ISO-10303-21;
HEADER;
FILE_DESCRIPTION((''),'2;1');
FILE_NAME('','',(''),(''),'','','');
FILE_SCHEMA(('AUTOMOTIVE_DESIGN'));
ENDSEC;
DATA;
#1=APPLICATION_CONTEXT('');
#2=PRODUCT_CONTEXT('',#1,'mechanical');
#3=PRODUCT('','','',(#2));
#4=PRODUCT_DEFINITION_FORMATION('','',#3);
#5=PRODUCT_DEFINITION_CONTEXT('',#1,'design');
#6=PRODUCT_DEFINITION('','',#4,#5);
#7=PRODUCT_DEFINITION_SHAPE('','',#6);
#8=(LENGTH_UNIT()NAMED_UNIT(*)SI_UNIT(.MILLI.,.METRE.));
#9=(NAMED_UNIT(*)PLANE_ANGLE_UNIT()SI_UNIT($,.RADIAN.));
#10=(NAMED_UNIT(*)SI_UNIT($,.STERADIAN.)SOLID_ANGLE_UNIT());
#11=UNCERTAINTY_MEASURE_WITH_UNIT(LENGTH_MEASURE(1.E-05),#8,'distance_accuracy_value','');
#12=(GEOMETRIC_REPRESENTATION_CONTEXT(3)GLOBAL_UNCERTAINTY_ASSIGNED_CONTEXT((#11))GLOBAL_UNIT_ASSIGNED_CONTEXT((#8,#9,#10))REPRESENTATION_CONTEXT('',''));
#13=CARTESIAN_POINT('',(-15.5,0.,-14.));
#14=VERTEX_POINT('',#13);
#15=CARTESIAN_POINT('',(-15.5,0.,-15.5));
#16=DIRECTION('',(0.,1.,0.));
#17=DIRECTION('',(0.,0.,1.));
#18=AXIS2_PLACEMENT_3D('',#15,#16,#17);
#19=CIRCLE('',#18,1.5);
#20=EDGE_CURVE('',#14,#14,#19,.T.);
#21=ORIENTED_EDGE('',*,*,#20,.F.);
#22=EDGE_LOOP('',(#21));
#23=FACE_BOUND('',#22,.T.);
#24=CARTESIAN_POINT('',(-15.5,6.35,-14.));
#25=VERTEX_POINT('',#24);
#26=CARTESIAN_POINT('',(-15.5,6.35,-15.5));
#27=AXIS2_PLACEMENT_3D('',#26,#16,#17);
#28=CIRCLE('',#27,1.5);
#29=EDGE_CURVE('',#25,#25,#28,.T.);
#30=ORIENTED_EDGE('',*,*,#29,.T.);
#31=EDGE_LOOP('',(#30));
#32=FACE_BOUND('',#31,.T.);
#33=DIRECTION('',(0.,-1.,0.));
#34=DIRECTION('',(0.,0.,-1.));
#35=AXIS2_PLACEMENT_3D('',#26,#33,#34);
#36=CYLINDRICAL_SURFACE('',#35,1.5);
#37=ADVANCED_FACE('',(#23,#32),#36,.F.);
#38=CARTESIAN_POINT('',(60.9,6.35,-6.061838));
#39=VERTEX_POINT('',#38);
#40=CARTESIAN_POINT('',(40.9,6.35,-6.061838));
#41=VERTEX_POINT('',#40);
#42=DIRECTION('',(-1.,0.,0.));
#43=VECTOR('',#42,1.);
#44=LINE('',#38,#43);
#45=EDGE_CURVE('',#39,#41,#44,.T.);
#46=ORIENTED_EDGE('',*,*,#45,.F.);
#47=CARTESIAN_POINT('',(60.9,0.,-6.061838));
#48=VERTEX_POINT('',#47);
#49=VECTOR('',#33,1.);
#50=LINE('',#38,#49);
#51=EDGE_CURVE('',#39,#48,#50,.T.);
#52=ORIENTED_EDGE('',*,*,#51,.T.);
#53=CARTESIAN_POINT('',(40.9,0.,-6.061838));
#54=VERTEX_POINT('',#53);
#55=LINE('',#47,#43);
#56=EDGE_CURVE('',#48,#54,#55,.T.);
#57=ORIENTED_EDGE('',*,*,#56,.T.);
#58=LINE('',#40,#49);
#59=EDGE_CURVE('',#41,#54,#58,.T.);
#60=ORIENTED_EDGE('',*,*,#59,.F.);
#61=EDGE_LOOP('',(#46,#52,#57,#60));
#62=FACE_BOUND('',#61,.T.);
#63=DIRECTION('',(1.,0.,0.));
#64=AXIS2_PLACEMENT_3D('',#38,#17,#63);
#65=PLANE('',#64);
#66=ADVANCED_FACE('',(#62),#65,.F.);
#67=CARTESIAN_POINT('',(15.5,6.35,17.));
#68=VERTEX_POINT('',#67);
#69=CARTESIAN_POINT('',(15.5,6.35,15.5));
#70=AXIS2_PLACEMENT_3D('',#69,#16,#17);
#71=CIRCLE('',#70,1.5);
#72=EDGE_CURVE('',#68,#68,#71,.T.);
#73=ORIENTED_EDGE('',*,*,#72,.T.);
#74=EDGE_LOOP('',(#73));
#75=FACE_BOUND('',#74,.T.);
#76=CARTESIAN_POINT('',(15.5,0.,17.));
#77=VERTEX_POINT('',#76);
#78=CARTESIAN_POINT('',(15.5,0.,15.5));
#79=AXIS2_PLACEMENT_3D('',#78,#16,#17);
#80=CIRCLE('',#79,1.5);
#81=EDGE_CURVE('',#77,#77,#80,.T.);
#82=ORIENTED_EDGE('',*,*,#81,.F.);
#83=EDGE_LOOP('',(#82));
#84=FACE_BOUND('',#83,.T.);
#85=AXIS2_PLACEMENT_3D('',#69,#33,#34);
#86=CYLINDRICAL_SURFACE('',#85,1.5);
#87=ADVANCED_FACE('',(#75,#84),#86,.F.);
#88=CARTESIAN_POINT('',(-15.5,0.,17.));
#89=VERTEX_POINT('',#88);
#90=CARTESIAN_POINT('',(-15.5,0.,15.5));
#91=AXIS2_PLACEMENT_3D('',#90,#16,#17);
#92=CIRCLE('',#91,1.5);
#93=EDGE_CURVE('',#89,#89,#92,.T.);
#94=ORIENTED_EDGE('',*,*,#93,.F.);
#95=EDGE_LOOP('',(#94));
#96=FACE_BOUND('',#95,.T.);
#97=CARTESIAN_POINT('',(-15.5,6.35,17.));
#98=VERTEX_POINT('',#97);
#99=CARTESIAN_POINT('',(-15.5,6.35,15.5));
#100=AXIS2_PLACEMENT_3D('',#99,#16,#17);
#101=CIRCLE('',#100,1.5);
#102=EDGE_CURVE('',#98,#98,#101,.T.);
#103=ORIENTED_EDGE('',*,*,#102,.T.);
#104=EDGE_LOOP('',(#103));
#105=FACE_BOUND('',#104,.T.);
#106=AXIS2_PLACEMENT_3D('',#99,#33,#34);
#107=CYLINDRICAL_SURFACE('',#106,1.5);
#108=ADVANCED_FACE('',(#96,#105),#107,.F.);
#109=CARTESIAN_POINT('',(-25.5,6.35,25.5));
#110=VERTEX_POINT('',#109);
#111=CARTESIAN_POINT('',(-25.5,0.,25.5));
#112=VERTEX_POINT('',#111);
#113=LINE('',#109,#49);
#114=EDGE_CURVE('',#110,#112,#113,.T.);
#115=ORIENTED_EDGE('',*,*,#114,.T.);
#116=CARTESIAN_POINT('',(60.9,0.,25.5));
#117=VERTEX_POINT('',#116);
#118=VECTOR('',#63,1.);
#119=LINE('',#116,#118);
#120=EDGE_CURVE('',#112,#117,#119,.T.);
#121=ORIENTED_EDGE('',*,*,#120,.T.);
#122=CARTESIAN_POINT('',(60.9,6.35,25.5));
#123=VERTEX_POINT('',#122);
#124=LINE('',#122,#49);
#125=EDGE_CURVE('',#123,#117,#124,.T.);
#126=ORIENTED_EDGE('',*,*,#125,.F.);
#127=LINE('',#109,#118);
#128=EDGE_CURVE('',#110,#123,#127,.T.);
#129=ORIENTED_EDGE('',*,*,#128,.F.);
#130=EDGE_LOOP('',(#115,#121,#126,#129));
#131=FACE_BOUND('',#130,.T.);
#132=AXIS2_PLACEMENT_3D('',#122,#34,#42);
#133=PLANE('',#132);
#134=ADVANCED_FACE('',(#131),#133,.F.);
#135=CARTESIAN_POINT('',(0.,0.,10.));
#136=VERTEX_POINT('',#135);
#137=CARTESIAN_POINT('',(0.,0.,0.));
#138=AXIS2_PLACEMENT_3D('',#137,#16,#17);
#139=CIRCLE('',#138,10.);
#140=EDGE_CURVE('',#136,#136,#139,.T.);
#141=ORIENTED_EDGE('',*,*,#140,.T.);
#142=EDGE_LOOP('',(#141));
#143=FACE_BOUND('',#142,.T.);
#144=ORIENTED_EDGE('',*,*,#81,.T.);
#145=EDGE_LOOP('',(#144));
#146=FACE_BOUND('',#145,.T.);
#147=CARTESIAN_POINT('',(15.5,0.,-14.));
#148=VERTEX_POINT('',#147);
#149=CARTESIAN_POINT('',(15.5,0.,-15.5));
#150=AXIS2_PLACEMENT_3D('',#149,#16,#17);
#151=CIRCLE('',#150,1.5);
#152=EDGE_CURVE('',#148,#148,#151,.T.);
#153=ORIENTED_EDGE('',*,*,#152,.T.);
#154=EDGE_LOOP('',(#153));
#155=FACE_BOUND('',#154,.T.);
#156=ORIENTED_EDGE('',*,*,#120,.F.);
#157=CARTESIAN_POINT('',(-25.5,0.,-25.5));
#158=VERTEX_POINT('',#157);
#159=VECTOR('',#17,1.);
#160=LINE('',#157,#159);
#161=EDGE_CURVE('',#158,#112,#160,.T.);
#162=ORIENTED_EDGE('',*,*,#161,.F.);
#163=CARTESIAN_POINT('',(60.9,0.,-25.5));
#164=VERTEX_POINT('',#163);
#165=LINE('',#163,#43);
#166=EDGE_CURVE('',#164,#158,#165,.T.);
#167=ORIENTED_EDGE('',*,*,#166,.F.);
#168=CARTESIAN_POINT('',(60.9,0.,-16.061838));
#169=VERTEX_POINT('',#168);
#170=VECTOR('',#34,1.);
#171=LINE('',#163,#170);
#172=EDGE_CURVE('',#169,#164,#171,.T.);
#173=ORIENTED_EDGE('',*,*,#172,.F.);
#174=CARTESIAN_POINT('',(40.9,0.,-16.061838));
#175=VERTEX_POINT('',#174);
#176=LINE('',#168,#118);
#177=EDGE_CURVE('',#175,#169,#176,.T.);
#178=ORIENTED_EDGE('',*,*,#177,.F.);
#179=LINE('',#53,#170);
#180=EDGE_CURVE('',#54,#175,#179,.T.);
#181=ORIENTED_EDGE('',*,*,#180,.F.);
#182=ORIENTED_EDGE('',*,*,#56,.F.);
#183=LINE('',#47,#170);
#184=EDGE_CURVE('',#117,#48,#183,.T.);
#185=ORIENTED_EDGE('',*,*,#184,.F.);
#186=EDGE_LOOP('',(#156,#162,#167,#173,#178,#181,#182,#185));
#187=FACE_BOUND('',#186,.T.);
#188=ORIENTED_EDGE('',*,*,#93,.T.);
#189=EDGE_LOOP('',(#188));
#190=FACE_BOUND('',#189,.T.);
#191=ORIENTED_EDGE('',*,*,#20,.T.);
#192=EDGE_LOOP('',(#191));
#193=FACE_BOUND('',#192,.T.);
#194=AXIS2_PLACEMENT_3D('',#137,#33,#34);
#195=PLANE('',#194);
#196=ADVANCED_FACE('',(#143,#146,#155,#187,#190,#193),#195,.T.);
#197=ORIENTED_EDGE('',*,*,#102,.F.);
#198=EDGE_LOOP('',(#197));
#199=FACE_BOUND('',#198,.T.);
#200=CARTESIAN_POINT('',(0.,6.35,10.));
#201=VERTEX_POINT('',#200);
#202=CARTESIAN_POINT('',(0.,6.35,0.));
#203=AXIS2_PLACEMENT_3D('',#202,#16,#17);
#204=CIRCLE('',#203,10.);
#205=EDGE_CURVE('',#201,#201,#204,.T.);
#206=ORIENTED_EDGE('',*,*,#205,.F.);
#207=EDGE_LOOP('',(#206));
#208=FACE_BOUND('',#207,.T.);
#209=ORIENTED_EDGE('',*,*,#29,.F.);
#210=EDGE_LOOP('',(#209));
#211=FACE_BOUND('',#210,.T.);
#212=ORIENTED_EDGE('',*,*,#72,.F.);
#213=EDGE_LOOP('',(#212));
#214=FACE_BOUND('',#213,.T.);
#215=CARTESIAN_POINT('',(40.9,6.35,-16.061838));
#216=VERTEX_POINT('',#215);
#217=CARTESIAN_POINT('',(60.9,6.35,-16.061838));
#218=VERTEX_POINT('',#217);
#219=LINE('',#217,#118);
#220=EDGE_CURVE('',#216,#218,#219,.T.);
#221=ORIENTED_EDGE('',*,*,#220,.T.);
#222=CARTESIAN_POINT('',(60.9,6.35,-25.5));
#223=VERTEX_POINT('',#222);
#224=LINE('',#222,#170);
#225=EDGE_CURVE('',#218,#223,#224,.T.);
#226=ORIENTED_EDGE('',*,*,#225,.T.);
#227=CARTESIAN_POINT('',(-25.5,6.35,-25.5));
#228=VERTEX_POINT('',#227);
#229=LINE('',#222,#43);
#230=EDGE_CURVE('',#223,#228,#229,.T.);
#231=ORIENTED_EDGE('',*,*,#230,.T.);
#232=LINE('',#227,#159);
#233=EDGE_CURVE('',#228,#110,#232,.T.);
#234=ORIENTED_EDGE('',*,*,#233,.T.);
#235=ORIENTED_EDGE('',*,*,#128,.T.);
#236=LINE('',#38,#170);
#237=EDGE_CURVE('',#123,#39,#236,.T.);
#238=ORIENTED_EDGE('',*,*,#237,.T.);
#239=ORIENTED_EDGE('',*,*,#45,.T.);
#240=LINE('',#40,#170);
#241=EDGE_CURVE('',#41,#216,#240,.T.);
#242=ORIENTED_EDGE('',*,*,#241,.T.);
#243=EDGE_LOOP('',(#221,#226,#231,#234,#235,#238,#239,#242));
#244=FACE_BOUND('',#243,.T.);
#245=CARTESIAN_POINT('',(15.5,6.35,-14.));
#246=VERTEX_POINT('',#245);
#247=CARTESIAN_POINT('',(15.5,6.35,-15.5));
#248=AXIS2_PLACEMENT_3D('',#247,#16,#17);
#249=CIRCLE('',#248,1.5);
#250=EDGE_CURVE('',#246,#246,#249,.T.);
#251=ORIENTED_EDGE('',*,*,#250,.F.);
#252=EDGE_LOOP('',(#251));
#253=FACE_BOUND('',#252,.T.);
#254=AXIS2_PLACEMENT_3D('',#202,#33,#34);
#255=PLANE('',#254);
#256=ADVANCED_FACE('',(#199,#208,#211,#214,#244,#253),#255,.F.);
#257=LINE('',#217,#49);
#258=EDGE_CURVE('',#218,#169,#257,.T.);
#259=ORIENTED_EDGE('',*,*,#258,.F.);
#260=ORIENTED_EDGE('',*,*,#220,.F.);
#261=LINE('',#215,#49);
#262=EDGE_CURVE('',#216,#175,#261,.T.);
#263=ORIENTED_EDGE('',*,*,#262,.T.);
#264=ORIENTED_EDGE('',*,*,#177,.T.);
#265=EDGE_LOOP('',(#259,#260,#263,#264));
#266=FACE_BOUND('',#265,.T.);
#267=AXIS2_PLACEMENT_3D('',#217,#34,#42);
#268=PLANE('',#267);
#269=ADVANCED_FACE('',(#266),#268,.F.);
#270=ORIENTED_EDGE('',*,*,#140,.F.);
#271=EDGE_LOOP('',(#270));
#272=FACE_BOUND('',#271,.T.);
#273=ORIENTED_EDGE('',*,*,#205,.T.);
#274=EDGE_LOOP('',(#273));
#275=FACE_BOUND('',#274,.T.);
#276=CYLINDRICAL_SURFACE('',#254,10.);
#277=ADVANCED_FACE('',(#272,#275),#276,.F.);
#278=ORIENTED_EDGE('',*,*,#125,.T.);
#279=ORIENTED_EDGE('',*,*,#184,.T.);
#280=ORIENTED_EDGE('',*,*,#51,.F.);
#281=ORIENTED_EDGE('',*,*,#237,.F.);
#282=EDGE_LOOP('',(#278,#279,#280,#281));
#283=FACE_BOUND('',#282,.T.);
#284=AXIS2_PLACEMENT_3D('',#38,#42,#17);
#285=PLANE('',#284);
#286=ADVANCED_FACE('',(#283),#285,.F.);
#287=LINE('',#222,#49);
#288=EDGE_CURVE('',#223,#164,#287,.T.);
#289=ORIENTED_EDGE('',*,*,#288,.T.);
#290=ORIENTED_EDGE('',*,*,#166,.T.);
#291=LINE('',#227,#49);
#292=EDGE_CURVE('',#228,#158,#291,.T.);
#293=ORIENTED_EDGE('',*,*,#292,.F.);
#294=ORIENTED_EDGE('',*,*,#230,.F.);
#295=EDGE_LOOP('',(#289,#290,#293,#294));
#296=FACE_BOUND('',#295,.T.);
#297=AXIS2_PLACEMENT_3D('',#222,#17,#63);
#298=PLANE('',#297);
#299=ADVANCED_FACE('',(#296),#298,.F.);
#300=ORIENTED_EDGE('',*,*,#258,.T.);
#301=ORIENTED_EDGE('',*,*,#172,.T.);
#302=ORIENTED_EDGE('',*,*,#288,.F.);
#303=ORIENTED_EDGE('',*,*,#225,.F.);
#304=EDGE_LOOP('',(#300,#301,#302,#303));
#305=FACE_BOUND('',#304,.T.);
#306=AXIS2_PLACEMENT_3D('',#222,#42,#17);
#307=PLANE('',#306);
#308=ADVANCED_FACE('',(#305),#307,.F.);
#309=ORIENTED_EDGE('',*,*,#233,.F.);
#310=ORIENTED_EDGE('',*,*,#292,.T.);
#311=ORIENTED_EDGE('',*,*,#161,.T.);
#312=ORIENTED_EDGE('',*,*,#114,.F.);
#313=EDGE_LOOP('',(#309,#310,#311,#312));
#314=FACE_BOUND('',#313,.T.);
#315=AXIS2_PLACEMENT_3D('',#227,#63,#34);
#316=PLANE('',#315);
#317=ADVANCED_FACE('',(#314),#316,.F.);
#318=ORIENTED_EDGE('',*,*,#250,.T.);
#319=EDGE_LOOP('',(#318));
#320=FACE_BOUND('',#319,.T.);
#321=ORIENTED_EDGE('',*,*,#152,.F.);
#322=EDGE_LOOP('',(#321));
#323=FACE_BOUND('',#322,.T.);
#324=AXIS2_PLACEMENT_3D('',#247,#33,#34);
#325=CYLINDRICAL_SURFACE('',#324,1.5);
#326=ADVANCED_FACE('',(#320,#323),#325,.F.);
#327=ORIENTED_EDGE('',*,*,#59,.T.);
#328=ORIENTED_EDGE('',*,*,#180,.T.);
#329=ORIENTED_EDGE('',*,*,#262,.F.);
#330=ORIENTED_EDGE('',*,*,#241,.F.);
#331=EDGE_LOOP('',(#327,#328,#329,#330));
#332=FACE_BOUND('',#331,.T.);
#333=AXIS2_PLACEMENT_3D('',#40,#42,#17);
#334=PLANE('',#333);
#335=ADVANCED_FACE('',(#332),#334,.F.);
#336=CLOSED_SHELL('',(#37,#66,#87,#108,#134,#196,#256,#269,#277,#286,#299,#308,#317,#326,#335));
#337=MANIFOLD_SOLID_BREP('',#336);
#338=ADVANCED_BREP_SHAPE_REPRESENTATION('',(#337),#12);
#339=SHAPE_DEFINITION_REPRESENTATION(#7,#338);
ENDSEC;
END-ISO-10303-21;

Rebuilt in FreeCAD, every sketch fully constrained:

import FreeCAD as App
import Part
import Sketcher

V = App.Vector
Q = App.Units.Quantity

doc = App.newDocument("Part")
body = doc.addObject("PartDesign::Body", "Body")

# Sketch on XZ plane
sketch1 = body.newObject("Sketcher::SketchObject", "Sketch")
sketch1.AttachmentSupport = (doc.getObject("XZ_Plane"), [""])
sketch1.MapMode = "FlatFace"
sketch1.addGeometry(Part.LineSegment(V(-25.5, -25.5, 0), V(-25.5, 25.5, 0)), False)
sketch1.addGeometry(Part.LineSegment(V(-25.5, 25.5, 0), V(60.9, 25.5, 0)), False)
sketch1.addGeometry(Part.LineSegment(V(60.9, 25.5, 0), V(60.9, -6.1, 0)), False)
sketch1.addGeometry(Part.LineSegment(V(60.9, -6.1, 0), V(40.9, -6.1, 0)), False)
sketch1.addGeometry(Part.LineSegment(V(40.9, -6.1, 0), V(40.9, -16.1, 0)), False)
sketch1.addGeometry(Part.LineSegment(V(40.9, -16.1, 0), V(60.9, -16.1, 0)), False)
sketch1.addGeometry(Part.LineSegment(V(60.9, -16.1, 0), V(60.9, -25.5, 0)), False)
sketch1.addGeometry(Part.LineSegment(V(60.9, -25.5, 0), V(-25.5, -25.5, 0)), False)
sketch1.addGeometry(Part.Circle(V(-15.5, 15.5, 0), V(0, 0, 1), 1.5), False)
sketch1.addGeometry(Part.Circle(V(15.5, 15.5, 0), V(0, 0, 1), 1.5), False)
sketch1.addGeometry(Part.Circle(V(0, 0, 0), V(0, 0, 1), 10), False)
sketch1.addGeometry(Part.Circle(V(-15.5, -15.5, 0), V(0, 0, 1), 1.5), False)
sketch1.addGeometry(Part.Circle(V(15.5, -15.5, 0), V(0, 0, 1), 1.5), False)
sketch1.addConstraint(Sketcher.Constraint("Coincident", 0, 2, 1, 1))
sketch1.addConstraint(Sketcher.Constraint("Coincident", 1, 2, 2, 1))
sketch1.addConstraint(Sketcher.Constraint("Coincident", 2, 2, 3, 1))
sketch1.addConstraint(Sketcher.Constraint("Coincident", 3, 2, 4, 1))
sketch1.addConstraint(Sketcher.Constraint("Coincident", 4, 2, 5, 1))
sketch1.addConstraint(Sketcher.Constraint("Coincident", 5, 2, 6, 1))
sketch1.addConstraint(Sketcher.Constraint("Coincident", 6, 2, 7, 1))
sketch1.addConstraint(Sketcher.Constraint("Coincident", 7, 2, 0, 1))
sketch1.addConstraint(Sketcher.Constraint("Vertical", 0))
sketch1.addConstraint(Sketcher.Constraint("Horizontal", 1))
sketch1.addConstraint(Sketcher.Constraint("Vertical", 2))
sketch1.addConstraint(Sketcher.Constraint("Horizontal", 3))
sketch1.addConstraint(Sketcher.Constraint("Vertical", 4))
sketch1.addConstraint(Sketcher.Constraint("Horizontal", 5))
sketch1.addConstraint(Sketcher.Constraint("Vertical", 6))
sketch1.addConstraint(Sketcher.Constraint("Horizontal", 7))
sketch1.addConstraint(Sketcher.Constraint("Coincident", 10, 3, -1, 1))
sketch1.addConstraint(Sketcher.Constraint("Equal", 8, 9))
sketch1.addConstraint(Sketcher.Constraint("Equal", 9, 11))
sketch1.addConstraint(Sketcher.Constraint("Equal", 11, 12))
sketch1.addConstraint(Sketcher.Constraint("Symmetric", 9, 3, 11, 3, -1, 1))
sketch1.addConstraint(Sketcher.Constraint("Symmetric", 8, 3, 12, 3, -1, 1))
sketch1.addConstraint(Sketcher.Constraint("Symmetric", 8, 3, 9, 3, -2))
sketch1.addConstraint(Sketcher.Constraint("Symmetric", 1, 2, 6, 2, -1))
sketch1.addConstraint(Sketcher.Constraint("Diameter", 8, Q("3 mm")))
sketch1.addConstraint(Sketcher.Constraint("Diameter", 10, Q("20 mm")))
sketch1.addConstraint(Sketcher.Constraint("DistanceX", 3, 2, 3, 1, Q("20 mm")))
sketch1.addConstraint(Sketcher.Constraint("DistanceY", 0, 1, 0, 2, Q("51 mm")))
sketch1.addConstraint(Sketcher.Constraint("DistanceY", 4, 2, 4, 1, Q("10 mm")))
sketch1.addConstraint(Sketcher.Constraint("DistanceX", 1, 1, 1, 2, Q("86.4 mm")))
sketch1.addConstraint(Sketcher.Constraint("DistanceX", 8, 3, 9, 3, Q("31 mm")))
sketch1.addConstraint(Sketcher.Constraint("DistanceY", 11, 3, 8, 3, Q("31 mm")))
sketch1.addConstraint(Sketcher.Constraint("DistanceX", 0, 2, 8, 3, Q("10 mm")))
sketch1.addConstraint(Sketcher.Constraint("DistanceY", 2, 2, 2, 1, Q("31.561838 mm")))
pad1 = body.newObject("PartDesign::Pad", "Pad")
pad1.Profile = sketch1
pad1.Length = 6.35
pad1.Reversed = True

doc.recompute()
